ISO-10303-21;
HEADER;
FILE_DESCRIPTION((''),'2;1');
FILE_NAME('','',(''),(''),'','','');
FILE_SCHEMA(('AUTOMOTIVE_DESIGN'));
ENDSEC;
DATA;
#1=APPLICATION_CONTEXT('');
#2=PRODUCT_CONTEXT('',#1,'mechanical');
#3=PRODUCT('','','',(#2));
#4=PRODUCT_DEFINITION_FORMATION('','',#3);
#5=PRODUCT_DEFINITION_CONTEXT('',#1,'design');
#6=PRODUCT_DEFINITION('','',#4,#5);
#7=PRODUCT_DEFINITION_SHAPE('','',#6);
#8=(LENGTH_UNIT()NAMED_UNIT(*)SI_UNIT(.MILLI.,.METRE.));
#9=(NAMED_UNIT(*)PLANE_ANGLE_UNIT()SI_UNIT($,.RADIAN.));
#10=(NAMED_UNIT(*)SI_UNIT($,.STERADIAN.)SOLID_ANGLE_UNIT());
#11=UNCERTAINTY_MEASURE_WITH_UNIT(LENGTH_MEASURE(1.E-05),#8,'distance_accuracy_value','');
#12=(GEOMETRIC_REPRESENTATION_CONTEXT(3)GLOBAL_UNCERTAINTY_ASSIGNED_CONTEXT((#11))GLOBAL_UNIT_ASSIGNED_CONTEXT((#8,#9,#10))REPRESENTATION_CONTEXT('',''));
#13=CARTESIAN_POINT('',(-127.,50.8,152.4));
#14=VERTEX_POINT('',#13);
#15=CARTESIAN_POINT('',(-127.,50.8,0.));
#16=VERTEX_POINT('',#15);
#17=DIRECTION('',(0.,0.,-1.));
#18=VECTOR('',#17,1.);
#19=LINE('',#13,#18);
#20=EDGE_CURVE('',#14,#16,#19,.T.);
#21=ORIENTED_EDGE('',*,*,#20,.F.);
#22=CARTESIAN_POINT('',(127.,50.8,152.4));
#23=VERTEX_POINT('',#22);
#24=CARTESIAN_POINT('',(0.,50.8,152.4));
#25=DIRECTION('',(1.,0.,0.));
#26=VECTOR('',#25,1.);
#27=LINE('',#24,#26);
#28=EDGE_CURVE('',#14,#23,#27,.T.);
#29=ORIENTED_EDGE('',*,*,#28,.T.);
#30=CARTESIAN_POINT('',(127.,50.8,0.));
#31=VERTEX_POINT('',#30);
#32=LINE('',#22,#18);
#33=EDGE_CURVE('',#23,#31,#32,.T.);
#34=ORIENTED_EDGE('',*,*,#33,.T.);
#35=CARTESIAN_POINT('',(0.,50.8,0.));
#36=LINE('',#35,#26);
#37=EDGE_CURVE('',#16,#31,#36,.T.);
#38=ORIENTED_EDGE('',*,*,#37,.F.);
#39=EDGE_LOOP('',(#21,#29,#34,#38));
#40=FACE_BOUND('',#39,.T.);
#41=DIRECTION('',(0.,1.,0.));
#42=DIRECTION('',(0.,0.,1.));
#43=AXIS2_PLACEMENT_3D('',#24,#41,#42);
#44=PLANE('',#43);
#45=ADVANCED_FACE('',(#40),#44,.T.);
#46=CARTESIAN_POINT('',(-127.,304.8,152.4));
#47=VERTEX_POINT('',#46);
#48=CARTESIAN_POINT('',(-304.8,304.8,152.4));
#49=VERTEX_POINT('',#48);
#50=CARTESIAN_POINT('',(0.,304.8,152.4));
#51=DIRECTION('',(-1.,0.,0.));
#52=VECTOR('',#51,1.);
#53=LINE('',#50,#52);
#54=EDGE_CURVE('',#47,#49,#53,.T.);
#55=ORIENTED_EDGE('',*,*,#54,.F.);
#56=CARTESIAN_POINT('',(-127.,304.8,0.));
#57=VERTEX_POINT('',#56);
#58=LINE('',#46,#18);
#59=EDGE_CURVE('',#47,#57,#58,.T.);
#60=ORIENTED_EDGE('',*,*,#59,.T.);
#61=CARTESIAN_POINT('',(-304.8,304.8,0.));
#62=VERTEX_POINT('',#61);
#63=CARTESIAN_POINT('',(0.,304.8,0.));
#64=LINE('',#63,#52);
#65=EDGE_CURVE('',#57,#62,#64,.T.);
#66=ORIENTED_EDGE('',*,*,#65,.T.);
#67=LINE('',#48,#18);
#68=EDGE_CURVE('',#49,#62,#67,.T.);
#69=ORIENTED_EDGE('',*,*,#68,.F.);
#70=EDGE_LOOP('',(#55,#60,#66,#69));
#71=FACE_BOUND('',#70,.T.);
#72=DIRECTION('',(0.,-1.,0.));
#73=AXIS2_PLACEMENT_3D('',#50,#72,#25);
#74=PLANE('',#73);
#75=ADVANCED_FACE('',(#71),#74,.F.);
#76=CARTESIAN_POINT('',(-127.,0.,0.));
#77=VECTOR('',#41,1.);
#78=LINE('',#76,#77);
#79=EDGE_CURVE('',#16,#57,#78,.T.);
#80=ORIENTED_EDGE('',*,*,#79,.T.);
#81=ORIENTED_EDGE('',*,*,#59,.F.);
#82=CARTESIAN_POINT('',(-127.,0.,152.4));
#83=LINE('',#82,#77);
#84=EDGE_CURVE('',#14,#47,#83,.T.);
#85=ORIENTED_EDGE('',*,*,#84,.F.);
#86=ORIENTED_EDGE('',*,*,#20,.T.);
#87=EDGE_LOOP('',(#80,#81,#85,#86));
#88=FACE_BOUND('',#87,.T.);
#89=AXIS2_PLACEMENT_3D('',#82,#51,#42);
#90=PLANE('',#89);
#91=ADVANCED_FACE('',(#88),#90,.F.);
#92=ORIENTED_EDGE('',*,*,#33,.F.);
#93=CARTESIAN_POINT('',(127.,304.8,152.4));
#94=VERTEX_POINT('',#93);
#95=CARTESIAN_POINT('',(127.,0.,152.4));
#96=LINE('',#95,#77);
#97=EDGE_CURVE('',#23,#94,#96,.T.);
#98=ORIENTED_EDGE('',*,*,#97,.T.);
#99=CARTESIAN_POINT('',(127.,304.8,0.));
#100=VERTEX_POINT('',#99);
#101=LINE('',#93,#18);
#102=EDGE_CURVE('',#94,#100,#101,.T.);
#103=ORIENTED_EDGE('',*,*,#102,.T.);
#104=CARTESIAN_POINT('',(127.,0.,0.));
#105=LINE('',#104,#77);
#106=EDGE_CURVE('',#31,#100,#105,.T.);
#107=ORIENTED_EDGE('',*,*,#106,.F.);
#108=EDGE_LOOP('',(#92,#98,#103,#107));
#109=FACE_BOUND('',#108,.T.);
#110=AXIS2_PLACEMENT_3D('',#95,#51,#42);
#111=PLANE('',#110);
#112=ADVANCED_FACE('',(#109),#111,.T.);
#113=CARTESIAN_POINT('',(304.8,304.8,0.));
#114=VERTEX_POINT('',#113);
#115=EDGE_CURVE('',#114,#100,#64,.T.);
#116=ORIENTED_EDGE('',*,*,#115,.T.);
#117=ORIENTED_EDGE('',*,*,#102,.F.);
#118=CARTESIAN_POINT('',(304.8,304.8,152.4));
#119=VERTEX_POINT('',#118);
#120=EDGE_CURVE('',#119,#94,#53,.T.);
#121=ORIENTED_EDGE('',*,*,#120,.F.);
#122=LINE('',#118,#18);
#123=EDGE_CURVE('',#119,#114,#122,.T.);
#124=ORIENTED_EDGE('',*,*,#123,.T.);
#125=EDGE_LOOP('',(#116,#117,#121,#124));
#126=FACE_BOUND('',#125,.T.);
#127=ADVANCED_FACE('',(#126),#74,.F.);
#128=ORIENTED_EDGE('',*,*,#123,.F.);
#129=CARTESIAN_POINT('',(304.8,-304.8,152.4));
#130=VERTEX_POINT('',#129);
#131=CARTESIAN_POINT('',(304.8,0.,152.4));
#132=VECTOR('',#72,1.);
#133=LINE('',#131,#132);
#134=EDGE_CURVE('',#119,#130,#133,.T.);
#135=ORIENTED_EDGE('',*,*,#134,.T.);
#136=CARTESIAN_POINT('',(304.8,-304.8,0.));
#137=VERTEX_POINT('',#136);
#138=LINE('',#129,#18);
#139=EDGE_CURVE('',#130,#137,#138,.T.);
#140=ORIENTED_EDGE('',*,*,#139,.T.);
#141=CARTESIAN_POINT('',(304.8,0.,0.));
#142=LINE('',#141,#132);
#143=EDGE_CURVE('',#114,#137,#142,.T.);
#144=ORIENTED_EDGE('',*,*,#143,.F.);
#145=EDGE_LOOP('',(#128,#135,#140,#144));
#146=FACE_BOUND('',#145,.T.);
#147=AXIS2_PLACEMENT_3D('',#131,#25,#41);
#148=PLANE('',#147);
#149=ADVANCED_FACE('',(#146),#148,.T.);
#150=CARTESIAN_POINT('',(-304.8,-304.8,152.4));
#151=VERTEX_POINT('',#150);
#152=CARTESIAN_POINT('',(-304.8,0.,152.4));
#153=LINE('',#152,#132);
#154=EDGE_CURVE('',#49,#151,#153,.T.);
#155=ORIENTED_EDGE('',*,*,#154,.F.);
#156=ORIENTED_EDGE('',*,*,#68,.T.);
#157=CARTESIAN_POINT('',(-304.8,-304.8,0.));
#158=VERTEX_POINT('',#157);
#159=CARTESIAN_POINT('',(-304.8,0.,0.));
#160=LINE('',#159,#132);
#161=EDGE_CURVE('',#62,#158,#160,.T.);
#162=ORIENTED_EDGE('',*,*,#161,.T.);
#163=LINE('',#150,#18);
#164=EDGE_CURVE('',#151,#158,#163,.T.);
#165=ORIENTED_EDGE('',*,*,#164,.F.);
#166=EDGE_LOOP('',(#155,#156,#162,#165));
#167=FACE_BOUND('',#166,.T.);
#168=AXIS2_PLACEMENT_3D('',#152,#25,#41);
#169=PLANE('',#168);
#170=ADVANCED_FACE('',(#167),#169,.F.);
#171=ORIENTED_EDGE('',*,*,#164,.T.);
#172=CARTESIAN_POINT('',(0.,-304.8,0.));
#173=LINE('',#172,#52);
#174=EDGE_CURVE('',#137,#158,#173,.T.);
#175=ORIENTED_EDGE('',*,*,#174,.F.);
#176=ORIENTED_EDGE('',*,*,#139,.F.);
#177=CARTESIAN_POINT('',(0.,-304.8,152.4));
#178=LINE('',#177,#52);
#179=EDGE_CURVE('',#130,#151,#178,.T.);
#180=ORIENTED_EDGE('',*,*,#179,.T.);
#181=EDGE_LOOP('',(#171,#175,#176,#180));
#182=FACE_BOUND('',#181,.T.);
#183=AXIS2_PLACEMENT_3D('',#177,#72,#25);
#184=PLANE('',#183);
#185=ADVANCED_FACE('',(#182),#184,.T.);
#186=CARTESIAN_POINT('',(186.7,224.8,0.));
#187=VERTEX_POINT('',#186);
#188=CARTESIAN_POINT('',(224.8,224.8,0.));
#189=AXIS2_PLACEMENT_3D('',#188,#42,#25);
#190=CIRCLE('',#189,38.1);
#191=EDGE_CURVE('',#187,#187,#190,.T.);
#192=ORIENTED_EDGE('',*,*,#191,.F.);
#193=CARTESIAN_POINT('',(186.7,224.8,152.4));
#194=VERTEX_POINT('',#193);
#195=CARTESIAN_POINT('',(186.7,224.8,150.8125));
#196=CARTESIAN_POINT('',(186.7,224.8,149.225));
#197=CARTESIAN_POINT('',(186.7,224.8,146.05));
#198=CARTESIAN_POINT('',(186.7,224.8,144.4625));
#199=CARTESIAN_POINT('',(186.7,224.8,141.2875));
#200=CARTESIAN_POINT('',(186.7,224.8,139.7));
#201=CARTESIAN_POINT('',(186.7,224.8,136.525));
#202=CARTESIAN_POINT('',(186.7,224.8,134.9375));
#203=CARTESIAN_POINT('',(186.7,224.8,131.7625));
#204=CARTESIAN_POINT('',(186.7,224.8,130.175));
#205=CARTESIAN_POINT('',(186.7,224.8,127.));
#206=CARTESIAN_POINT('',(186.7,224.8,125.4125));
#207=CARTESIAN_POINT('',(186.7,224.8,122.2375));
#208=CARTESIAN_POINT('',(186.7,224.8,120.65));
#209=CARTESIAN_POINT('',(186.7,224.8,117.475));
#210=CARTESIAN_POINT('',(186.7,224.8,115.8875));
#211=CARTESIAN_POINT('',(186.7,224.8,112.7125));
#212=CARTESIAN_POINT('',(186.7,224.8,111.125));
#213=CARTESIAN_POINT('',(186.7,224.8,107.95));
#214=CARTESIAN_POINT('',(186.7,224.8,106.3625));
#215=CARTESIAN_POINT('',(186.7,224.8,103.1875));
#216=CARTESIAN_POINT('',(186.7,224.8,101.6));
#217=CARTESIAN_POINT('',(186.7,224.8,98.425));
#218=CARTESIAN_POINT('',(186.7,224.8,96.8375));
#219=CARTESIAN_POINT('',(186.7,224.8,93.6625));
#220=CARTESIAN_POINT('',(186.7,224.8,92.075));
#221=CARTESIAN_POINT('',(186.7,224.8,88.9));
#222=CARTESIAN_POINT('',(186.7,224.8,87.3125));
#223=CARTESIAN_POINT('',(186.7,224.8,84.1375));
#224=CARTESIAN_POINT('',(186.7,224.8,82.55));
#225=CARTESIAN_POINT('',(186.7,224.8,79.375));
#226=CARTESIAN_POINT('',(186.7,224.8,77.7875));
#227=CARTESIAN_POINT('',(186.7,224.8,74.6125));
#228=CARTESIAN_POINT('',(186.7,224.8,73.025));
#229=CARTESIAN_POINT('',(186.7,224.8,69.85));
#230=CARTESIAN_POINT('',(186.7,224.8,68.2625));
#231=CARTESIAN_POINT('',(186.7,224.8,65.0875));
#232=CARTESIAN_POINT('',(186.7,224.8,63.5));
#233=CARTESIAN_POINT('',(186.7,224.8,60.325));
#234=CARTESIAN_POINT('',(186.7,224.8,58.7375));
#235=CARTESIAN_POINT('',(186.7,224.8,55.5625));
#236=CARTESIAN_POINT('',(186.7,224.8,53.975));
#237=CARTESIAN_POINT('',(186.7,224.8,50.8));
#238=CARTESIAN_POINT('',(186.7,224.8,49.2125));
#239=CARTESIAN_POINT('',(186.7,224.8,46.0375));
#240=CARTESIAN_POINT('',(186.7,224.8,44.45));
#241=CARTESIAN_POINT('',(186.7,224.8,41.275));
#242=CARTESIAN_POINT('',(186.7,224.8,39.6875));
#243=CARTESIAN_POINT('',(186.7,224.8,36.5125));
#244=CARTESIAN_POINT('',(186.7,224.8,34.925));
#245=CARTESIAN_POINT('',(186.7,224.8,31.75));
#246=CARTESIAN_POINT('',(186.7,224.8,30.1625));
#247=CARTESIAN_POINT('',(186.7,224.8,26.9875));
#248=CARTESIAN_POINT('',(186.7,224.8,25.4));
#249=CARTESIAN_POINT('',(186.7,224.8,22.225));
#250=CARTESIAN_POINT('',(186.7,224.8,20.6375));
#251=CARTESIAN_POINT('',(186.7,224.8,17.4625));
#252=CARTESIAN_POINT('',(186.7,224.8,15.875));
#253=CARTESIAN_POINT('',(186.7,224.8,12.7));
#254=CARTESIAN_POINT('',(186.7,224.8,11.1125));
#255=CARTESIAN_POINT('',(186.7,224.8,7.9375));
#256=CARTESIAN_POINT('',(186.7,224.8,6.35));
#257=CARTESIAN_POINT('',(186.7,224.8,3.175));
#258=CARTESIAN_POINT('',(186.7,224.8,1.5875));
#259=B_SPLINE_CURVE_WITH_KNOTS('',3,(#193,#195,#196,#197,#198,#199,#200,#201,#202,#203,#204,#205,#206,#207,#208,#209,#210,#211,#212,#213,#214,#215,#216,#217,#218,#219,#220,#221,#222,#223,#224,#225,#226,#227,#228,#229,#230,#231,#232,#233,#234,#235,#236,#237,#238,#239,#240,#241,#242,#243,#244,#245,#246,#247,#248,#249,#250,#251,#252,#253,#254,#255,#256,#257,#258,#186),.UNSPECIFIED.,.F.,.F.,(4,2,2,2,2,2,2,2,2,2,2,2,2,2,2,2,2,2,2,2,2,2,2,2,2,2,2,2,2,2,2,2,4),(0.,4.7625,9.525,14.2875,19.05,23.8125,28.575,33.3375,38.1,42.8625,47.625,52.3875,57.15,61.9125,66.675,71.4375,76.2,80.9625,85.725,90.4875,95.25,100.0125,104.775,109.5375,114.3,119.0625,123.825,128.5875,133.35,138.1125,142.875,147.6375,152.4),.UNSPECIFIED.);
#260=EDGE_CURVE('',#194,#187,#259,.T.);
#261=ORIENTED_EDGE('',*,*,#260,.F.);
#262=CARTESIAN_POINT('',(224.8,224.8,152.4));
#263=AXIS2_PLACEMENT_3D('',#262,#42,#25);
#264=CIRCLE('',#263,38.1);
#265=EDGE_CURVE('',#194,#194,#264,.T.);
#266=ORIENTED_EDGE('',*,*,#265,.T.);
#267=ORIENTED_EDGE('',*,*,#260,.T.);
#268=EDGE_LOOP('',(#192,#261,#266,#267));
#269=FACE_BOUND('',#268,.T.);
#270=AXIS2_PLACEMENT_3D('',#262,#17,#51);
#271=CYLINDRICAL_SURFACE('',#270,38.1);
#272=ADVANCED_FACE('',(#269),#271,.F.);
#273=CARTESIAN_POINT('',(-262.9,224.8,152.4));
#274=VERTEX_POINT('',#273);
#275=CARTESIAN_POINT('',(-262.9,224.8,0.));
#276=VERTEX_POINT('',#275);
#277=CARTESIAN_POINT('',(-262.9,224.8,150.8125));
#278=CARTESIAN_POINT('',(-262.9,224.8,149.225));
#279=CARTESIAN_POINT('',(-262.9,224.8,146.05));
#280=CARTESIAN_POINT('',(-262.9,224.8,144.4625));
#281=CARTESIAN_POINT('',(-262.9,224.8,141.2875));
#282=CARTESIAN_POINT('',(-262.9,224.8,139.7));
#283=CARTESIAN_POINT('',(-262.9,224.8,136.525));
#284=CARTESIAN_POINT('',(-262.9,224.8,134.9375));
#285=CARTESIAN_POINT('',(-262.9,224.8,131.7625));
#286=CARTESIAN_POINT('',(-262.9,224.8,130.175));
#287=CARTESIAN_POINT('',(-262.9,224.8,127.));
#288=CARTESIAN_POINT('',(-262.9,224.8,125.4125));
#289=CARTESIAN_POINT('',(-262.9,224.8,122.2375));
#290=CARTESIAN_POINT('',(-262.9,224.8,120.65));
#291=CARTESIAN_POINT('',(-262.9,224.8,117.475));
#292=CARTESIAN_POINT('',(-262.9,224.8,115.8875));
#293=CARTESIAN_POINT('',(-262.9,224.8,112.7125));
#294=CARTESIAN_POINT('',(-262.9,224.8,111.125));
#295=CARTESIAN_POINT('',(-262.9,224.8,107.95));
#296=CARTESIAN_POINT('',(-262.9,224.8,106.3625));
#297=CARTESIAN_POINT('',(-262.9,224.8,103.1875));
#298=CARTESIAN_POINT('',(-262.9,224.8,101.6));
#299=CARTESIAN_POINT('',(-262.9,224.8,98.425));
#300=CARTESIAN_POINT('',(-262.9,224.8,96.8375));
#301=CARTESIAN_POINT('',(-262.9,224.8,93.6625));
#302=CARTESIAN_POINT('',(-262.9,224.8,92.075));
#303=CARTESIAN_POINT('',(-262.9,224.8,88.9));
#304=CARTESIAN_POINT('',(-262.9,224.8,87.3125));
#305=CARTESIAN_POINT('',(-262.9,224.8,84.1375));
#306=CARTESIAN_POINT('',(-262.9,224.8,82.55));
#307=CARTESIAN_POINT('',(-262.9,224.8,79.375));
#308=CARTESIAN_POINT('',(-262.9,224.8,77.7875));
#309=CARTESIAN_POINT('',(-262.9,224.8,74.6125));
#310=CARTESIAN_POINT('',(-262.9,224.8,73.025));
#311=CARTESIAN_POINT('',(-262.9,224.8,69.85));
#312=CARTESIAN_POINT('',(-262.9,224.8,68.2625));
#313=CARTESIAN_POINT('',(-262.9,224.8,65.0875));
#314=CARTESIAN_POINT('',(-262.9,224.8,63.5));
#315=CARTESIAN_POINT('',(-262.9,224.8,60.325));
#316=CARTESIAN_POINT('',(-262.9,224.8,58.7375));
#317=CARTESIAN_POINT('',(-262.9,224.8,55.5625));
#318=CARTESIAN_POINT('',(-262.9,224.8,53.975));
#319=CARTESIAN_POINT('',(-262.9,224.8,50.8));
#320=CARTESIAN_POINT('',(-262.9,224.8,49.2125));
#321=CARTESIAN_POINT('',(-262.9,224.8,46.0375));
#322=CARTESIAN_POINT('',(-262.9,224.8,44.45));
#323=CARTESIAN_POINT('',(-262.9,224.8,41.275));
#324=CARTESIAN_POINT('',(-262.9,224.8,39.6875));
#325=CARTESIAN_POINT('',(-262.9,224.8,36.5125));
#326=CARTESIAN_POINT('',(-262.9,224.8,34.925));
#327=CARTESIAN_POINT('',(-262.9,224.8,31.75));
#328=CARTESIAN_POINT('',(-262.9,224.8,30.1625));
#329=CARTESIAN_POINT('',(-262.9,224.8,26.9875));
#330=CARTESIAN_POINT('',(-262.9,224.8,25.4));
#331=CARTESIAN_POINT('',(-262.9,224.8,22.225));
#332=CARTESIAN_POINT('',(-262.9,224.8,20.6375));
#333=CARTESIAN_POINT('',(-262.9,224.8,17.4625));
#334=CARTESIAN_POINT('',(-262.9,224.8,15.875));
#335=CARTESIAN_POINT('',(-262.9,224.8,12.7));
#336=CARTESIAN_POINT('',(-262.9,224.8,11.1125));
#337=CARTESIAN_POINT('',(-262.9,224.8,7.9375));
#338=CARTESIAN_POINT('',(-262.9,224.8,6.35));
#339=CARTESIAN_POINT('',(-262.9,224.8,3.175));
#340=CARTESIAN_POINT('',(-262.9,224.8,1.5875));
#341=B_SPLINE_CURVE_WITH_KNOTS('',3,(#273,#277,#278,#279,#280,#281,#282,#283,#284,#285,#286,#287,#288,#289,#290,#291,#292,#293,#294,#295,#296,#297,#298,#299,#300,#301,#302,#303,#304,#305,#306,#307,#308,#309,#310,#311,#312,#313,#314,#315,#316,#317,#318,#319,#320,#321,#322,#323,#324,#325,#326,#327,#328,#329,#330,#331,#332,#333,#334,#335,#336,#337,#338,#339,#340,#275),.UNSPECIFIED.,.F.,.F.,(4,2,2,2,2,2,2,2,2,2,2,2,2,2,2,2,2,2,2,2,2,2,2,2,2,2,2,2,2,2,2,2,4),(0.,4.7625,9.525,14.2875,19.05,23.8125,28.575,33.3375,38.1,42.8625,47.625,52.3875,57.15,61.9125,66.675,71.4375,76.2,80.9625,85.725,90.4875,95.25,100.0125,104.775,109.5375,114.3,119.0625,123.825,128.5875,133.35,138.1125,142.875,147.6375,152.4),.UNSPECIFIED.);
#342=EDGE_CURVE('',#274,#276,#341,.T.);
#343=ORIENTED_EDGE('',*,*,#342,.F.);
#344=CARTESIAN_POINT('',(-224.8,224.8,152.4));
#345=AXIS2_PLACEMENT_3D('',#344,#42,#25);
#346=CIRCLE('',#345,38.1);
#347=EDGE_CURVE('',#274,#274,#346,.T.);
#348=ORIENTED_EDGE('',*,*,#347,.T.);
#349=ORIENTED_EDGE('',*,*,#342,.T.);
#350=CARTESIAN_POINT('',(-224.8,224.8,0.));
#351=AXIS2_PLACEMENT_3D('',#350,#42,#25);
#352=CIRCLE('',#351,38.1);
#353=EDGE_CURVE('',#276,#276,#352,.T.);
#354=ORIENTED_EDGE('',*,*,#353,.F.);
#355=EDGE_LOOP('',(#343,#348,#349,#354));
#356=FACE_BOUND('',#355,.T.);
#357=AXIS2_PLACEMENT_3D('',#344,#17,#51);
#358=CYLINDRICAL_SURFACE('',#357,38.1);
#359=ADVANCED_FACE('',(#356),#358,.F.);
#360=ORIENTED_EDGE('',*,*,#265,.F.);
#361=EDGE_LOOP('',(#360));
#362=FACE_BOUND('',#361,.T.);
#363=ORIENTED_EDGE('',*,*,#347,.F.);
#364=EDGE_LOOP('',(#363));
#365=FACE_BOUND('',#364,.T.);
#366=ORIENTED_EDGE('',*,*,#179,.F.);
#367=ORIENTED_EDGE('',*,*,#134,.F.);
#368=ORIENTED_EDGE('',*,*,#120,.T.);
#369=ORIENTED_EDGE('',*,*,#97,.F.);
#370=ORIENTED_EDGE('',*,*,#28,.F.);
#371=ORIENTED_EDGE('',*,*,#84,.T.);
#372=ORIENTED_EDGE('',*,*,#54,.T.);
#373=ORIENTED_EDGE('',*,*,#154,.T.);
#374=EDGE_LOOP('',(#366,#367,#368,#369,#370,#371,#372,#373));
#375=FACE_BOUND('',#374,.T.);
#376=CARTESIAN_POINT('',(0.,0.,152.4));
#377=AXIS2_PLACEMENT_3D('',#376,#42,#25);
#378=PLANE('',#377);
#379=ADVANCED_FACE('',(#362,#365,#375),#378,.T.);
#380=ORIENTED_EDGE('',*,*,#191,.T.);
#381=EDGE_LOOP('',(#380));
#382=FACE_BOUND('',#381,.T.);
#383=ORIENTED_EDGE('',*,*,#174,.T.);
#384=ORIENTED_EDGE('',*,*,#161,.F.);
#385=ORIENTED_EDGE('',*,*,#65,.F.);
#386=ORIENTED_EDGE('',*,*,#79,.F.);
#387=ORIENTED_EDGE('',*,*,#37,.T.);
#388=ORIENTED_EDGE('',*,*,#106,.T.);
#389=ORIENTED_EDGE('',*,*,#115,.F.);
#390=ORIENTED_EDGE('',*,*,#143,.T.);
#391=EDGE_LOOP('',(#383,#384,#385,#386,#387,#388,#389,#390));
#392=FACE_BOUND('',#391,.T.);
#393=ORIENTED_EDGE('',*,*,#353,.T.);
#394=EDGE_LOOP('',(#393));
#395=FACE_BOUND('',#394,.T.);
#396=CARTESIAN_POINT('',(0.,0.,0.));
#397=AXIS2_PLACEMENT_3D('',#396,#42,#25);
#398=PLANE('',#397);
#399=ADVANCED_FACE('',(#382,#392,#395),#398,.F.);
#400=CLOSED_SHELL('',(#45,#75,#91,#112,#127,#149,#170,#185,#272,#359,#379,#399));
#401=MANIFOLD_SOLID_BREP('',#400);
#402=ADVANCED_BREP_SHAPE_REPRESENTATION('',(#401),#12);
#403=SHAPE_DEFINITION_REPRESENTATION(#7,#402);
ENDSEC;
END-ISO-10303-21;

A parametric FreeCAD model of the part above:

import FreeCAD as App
import Part
import Sketcher

V = App.Vector
Q = App.Units.Quantity

doc = App.newDocument("Part")
body = doc.addObject("PartDesign::Body", "Body")

# Sketch on XY plane
sketch1 = doc.addObject("Sketcher::SketchObject", "Sketch")
body.addObject(sketch1)
sketch1.AttachmentSupport = (doc.XY_Plane, [""])
sketch1.MapMode = "FlatFace"
sketch1.addGeometry([
    Part.LineSegment(V(304.8, -304.8, 0), V(304.8, 304.8, 0)),  # 0
    Part.LineSegment(V(304.8, 304.8, 0), V(127, 304.8, 0)),  # 1
    Part.LineSegment(V(127, 304.8, 0), V(127, 50.8, 0)),  # 2
    Part.LineSegment(V(127, 50.8, 0), V(-127, 50.8, 0)),  # 3
    Part.LineSegment(V(-127, 50.8, 0), V(-127, 304.8, 0)),  # 4
    Part.LineSegment(V(-127, 304.8, 0), V(-304.8, 304.8, 0)),  # 5
    Part.LineSegment(V(-304.8, 304.8, 0), V(-304.8, -304.8, 0)),  # 6
    Part.LineSegment(V(-304.8, -304.8, 0), V(304.8, -304.8, 0)),  # 7
    Part.Circle(V(-224.8, 224.8, 0), V(0, 0, 1), 38.1),  # 8
    Part.Circle(V(224.8, 224.8, 0), V(0, 0, 1), 38.1),  # 9
], False)
sketch1.addConstraint([
    Sketcher.Constraint("Coincident", 0, 2, 1, 1),
    Sketcher.Constraint("Coincident", 1, 2, 2, 1),
    Sketcher.Constraint("Coincident", 2, 2, 3, 1),
    Sketcher.Constraint("Coincident", 3, 2, 4, 1),
    Sketcher.Constraint("Coincident", 4, 2, 5, 1),
    Sketcher.Constraint("Coincident", 5, 2, 6, 1),
    Sketcher.Constraint("Coincident", 6, 2, 7, 1),
    Sketcher.Constraint("Coincident", 7, 2, 0, 1),
    Sketcher.Constraint("Vertical", 0),
    Sketcher.Constraint("Horizontal", 1),
    Sketcher.Constraint("Vertical", 2),
    Sketcher.Constraint("Horizontal", 3),
    Sketcher.Constraint("Vertical", 4),
    Sketcher.Constraint("Horizontal", 5),
    Sketcher.Constraint("Vertical", 6),
    Sketcher.Constraint("Horizontal", 7),
    Sketcher.Constraint("Equal", 8, 9),
    Sketcher.Constraint("Symmetric", 0, 2, 6, 2, -1, 1),
    Sketcher.Constraint("Symmetric", 8, 3, 9, 3, -2),
    Sketcher.Constraint("Symmetric", 1, 2, 4, 2, -2),
    Sketcher.Constraint("Equal", 7, 0),
    Sketcher.Constraint("Equal", 3, 2),
    Sketcher.Constraint("Diameter", 8, Q("3 in")),
    Sketcher.Constraint("DistanceX", 1, 2, 1, 1, Q("7 in")),
    Sketcher.Constraint("DistanceX", 3, 2, 3, 1, Q("10 in")),
    Sketcher.Constraint("DistanceX", 8, 3, -1, 1, Q("224.8 mm")),
    Sketcher.Constraint("DistanceY", -1, 1, 8, 3, Q("224.8 mm")),
])
pad1 = doc.addObject("PartDesign::Pad", "Pad")
body.addObject(pad1)
pad1.Profile = sketch1
pad1.Length = Q("6 in")

doc.recompute()
